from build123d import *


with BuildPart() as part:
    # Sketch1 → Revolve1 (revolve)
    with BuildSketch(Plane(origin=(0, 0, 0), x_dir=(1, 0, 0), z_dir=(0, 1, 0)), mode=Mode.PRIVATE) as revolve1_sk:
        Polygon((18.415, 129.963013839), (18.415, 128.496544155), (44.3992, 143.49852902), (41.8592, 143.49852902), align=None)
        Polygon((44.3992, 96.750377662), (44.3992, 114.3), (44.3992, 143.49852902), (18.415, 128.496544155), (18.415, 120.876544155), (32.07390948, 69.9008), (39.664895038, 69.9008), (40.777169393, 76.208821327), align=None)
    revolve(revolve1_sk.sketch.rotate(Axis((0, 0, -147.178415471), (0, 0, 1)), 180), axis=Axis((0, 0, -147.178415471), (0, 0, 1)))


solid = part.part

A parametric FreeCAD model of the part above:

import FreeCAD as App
import Part
import Sketcher
from FreeCAD import Vector
Q = App.Units.Quantity

doc = App.newDocument("Part")
body = doc.addObject("PartDesign::Body", "Body")

sketch1 = body.newObject("Sketcher::SketchObject", "Sketch")
sketch1.AttachmentSupport = (doc.getObject("XZ_Plane"), [""])
sketch1.MapMode = "FlatFace"
sketch1.addGeometry([
    Part.LineSegment(Vector(18.4, -130, 0), Vector(18.4, -120.9, 0)),
    Part.LineSegment(Vector(18.4, -120.9, 0), Vector(32.1, -69.9, 0)),
    Part.LineSegment(Vector(32.1, -69.9, 0), Vector(39.7, -69.9, 0)),
    Part.LineSegment(Vector(39.7, -69.9, 0), Vector(40.8, -76.2, 0)),
    Part.LineSegment(Vector(40.8, -76.2, 0), Vector(44.4, -96.8, 0)),
    Part.LineSegment(Vector(44.4, -96.8, 0), Vector(44.4, -143.5, 0)),
    Part.LineSegment(Vector(44.4, -143.5, 0), Vector(41.9, -143.5, 0)),
    Part.LineSegment(Vector(41.9, -143.5, 0), Vector(18.4, -130, 0)),
], False)
sketch1.addConstraint([
    Sketcher.Constraint("Coincident", 0, 2, 1, 1),
    Sketcher.Constraint("Coincident", 1, 2, 2, 1),
    Sketcher.Constraint("Coincident", 2, 2, 3, 1),
    Sketcher.Constraint("Coincident", 3, 2, 4, 1),
    Sketcher.Constraint("Coincident", 4, 2, 5, 1),
    Sketcher.Constraint("Coincident", 5, 2, 6, 1),
    Sketcher.Constraint("Coincident", 6, 2, 7, 1),
    Sketcher.Constraint("Coincident", 7, 2, 0, 1),
    Sketcher.Constraint("Vertical", 0),
    Sketcher.Constraint("Horizontal", 2),
    Sketcher.Constraint("Vertical", 5),
    Sketcher.Constraint("Horizontal", 6),
    Sketcher.Constraint("Parallel", 3, 4),
    Sketcher.Constraint("DistanceX", 6, 2, 6, 1, Q("0.1 in")),
    Sketcher.Constraint("Angle", 1, Q("75 deg")),
    Sketcher.Constraint("Angle", 3, Q("-80 deg")),
    Sketcher.Constraint("Angle", 7, Q("150 deg")),
    Sketcher.Constraint("DistanceX", -1, 1, 0, 2, Q("0.725 in")),
    Sketcher.Constraint("DistanceY", 1, 2, -1, 1, Q("2.752 in")),
    Sketcher.Constraint("DistanceX", -1, 1, 4, 2, Q("1.748 in")),
    Sketcher.Constraint("DistanceY", 0, 1, 0, 2, Q("9.08647 mm")),
    Sketcher.Constraint("DistanceY", 5, 2, 5, 1, Q("46.748151 mm")),
    Sketcher.Constraint("DistanceX", 2, 1, 2, 2, Q("7.590986 mm")),
    Sketcher.Constraint("DistanceX", -1, 1, 3, 2, Q("40.777169 mm")),
])
revolution = body.newObject("PartDesign::Revolution", "Revolution")
revolution.Profile = sketch1
revolution.ReferenceAxis = (sketch1, ["V_Axis"])
revolution.Angle = 360

doc.recompute()
